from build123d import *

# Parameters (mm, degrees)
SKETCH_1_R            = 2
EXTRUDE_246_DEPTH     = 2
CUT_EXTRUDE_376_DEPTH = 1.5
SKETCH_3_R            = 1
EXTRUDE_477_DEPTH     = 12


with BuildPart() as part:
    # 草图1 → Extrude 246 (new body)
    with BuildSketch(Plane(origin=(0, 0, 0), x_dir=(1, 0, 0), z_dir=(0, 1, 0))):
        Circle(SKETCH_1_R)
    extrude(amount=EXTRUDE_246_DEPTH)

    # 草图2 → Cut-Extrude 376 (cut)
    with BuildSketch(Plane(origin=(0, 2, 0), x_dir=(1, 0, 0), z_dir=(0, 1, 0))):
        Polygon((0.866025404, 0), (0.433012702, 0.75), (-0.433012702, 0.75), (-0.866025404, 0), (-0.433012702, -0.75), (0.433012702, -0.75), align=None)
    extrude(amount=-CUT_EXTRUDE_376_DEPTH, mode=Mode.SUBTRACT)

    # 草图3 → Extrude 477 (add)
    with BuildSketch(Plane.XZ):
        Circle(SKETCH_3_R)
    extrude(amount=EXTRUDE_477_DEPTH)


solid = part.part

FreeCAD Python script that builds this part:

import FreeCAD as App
import Part
import Sketcher
Q = App.Units.Quantity

doc = App.newDocument("Part")
body = doc.addObject("PartDesign::Body", "Body")

sketch1 = doc.addObject("Sketcher::SketchObject", "Sketch")
body.addObject(sketch1)
sketch1.AttachmentSupport = (doc.XZ_Plane, [""])
sketch1.MapMode = "FlatFace"
sketch1.addGeometry(Part.Circle(App.Vector(0, 0, 0), App.Vector(0, 0, 1), 2), False)
sketch1.addConstraint([
    Sketcher.Constraint("Coincident", 0, 3, -1, 1),
    Sketcher.Constraint("Diameter", 0, Q("4 mm")),
])
pad1 = doc.addObject("PartDesign::Pad", "Pad")
body.addObject(pad1)
pad1.Profile = sketch1
pad1.Length = 2
pad1.Reversed = True

sketch2 = doc.addObject("Sketcher::SketchObject", "Sketch001")
body.addObject(sketch2)
sketch2.AttachmentSupport = (doc.XZ_Plane, [""])
sketch2.MapMode = "FlatFace"
sketch2.AttachmentOffset = App.Placement(App.Vector(0, 0, -2), App.Rotation())
sketch2.addGeometry([
    Part.LineSegment(App.Vector(0.9, 0, 0), App.Vector(0.4, -0.8, 0)),
    Part.LineSegment(App.Vector(0.4, -0.8, 0), App.Vector(-0.4, -0.8, 0)),
    Part.LineSegment(App.Vector(-0.4, -0.8, 0), App.Vector(-0.9, 0, 0)),
    Part.LineSegment(App.Vector(-0.9, 0, 0), App.Vector(-0.4, 0.8, 0)),
    Part.LineSegment(App.Vector(-0.4, 0.8, 0), App.Vector(0.4, 0.8, 0)),
    Part.LineSegment(App.Vector(0.4, 0.8, 0), App.Vector(0.9, 0, 0)),
], False)
sketch2.addConstraint([
    Sketcher.Constraint("Coincident", 0, 2, 1, 1),
    Sketcher.Constraint("Coincident", 1, 2, 2, 1),
    Sketcher.Constraint("Coincident", 2, 2, 3, 1),
    Sketcher.Constraint("Coincident", 3, 2, 4, 1),
    Sketcher.Constraint("Coincident", 4, 2, 5, 1),
    Sketcher.Constraint("Coincident", 5, 2, 0, 1),
    Sketcher.Constraint("Horizontal", 1),
    Sketcher.Constraint("Horizontal", 4),
    Sketcher.Constraint("Symmetric", 0, 2, 3, 2, -1, 1),
    Sketcher.Constraint("Symmetric", 2, 2, 5, 2, -1, 1),
    Sketcher.Constraint("PointOnObject", 2, 2, -1),
    Sketcher.Constraint("Parallel", 2, 5),
    Sketcher.Constraint("Vertical", 1, 2, 3, 2),
    Sketcher.Constraint("Angle", 0, Q("-120 deg")),
    Sketcher.Constraint("DistanceY", 1, 2, 3, 2, Q("1.5 mm")),
    Sketcher.Constraint("DistanceX", 1, 2, 1, 1, Q("0.866025 mm")),
])
pocket1 = doc.addObject("PartDesign::Pocket", "Pocket")
body.addObject(pocket1)
pocket1.Profile = sketch2
pocket1.Length = 1.5
pocket1.Reversed = True

sketch3 = doc.addObject("Sketcher::SketchObject", "Sketch002")
body.addObject(sketch3)
sketch3.AttachmentSupport = (doc.XZ_Plane, [""])
sketch3.MapMode = "FlatFace"
sketch3.addGeometry(Part.Circle(App.Vector(0, 0, 0), App.Vector(0, 0, 1), 1), False)
sketch3.addConstraint([
    Sketcher.Constraint("Coincident", 0, 3, -1, 1),
    Sketcher.Constraint("Diameter", 0, Q("2 mm")),
])
pad2 = doc.addObject("PartDesign::Pad", "Pad001")
body.addObject(pad2)
pad2.Profile = sketch3
pad2.Length = 12

doc.recompute()
